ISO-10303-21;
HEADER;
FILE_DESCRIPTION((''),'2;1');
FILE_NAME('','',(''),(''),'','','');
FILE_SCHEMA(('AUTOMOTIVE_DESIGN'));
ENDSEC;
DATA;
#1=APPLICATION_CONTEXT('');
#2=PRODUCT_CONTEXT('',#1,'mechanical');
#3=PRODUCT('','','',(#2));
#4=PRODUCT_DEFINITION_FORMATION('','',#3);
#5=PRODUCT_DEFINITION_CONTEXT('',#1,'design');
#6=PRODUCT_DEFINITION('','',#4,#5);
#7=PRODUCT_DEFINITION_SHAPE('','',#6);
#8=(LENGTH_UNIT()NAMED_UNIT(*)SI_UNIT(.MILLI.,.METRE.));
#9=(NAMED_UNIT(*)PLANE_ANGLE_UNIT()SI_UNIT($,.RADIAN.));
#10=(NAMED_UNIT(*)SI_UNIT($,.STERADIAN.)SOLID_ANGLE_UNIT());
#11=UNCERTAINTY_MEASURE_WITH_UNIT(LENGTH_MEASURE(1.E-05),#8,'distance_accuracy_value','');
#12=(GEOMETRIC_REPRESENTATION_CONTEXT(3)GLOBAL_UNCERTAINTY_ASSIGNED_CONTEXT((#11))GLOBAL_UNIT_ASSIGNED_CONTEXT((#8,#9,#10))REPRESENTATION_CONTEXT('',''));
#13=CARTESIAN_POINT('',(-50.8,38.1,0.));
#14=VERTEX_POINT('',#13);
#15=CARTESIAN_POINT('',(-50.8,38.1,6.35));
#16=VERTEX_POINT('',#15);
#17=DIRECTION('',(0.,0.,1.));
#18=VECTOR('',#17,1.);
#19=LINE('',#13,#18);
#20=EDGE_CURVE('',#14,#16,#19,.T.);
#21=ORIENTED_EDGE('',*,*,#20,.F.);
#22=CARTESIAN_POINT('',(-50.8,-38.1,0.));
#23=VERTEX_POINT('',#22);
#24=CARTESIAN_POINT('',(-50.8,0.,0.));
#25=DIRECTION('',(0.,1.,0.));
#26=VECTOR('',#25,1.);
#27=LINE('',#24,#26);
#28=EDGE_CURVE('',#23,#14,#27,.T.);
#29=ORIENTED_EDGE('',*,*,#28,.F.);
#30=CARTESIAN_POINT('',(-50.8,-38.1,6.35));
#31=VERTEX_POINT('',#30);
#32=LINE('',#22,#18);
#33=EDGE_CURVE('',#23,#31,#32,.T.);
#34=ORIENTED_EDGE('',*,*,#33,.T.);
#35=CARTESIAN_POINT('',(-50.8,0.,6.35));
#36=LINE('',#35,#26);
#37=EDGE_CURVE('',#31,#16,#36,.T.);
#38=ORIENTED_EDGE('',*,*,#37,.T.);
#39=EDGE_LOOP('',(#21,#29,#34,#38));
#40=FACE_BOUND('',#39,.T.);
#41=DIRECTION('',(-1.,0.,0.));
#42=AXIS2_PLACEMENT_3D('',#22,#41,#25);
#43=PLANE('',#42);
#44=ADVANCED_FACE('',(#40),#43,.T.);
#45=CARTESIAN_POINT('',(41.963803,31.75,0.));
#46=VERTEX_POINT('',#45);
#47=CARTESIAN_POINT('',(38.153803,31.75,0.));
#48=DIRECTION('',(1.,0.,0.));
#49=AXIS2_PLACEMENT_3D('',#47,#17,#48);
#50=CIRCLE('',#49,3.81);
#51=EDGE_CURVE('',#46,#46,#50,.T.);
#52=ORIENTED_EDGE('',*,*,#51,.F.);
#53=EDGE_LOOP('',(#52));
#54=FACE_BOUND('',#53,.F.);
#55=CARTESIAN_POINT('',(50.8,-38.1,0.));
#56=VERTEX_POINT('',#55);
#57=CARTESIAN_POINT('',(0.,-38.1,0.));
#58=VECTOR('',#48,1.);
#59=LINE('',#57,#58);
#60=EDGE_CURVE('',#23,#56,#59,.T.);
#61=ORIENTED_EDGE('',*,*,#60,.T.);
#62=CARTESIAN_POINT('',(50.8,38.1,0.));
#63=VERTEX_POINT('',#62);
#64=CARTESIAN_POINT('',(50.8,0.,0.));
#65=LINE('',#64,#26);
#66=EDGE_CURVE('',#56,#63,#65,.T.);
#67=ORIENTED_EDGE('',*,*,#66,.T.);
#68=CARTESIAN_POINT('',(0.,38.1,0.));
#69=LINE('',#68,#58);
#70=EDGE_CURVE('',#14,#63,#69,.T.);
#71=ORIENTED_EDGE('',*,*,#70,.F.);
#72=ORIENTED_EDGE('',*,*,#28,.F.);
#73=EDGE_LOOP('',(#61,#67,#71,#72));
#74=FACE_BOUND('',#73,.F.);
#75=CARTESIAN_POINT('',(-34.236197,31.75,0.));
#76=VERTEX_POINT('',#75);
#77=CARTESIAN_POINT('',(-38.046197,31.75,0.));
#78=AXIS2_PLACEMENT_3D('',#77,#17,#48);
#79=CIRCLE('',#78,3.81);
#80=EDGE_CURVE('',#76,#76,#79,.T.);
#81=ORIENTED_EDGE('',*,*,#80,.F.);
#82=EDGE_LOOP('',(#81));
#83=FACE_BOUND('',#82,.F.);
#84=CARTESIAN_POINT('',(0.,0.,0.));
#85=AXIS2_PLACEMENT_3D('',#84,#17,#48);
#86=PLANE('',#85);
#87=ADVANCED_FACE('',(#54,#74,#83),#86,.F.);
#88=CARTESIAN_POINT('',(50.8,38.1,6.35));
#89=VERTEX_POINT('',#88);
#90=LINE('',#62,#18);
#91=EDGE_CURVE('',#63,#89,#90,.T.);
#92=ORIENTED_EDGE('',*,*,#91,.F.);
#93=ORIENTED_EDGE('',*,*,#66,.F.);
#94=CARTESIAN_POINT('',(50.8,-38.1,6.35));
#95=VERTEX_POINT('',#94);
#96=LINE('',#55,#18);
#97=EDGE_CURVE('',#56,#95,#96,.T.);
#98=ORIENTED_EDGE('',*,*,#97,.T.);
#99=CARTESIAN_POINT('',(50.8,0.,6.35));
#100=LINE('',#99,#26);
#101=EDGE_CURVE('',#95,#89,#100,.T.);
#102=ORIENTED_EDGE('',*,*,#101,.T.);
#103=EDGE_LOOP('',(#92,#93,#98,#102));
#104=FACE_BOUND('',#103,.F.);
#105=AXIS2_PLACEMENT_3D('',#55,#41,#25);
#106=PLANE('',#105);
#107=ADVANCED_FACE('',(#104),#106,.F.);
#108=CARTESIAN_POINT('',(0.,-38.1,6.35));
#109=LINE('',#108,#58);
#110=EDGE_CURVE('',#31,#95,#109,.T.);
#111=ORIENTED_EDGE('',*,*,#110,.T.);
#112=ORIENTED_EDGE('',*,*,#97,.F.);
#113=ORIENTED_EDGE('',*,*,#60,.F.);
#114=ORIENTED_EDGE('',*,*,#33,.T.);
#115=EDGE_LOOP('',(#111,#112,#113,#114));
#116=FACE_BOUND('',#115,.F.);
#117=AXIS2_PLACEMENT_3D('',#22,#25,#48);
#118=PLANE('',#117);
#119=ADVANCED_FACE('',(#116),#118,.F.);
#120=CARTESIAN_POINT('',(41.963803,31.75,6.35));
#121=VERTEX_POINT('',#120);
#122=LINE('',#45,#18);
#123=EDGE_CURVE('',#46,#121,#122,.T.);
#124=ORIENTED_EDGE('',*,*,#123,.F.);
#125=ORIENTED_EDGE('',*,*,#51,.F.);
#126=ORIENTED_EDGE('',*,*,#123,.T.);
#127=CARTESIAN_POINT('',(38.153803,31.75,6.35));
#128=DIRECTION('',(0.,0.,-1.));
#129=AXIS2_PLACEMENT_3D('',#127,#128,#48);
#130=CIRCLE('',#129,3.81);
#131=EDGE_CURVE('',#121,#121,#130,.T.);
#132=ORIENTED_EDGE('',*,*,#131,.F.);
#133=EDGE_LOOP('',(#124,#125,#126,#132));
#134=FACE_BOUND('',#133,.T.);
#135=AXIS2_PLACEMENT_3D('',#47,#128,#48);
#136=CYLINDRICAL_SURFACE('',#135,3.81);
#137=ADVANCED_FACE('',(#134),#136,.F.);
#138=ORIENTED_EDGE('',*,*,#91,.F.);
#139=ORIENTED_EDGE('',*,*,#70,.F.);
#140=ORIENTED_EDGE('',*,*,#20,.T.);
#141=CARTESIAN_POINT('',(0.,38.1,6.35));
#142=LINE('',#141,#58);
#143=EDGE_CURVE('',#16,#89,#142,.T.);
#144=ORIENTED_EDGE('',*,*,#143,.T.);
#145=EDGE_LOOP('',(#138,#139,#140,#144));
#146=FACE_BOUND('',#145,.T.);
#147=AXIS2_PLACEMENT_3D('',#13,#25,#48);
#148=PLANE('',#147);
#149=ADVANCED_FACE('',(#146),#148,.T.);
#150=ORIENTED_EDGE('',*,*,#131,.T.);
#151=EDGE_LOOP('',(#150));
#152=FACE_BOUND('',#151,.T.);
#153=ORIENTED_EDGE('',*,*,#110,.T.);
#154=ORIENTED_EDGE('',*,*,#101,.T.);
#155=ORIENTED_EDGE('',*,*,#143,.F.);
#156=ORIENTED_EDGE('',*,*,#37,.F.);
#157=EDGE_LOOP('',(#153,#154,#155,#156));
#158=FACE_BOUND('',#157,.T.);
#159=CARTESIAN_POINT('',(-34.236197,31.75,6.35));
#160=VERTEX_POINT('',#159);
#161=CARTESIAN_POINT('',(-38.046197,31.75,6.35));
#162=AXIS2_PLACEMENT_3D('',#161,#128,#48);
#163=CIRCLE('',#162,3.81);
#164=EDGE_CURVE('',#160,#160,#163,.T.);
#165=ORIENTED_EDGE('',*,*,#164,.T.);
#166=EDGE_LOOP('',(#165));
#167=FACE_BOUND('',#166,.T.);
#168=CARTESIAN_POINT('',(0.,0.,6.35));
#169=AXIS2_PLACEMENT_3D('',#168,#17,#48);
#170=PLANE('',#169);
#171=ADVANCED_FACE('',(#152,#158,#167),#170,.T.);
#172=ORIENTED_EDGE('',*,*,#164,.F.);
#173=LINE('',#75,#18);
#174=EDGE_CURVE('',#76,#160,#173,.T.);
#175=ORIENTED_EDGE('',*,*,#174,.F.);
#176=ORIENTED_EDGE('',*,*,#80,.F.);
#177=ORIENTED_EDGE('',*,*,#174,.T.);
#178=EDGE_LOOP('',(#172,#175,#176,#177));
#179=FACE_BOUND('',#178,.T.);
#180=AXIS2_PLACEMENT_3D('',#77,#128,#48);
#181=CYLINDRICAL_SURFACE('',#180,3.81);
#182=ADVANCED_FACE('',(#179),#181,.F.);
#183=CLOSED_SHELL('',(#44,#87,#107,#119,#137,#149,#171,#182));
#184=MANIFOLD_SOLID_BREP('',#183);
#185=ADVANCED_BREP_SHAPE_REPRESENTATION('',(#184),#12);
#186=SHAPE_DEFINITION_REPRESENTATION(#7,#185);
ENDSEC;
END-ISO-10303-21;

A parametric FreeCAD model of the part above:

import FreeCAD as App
import Part
import Sketcher
from FreeCAD import Vector
Q = App.Units.Quantity

doc = App.newDocument("Part")
params = doc.addObject("Spreadsheet::Sheet", "Params")
for row, (alias, value) in enumerate([
    ("sketch1_width", "4 in"),
    ("sketch1_height", "3 in"),
    ("pad1_length", "0.25 in"),
    ("sketch2_diameter", "0.3 in"),
], start=1):
    params.set(f"A{row}", alias)
    params.set(f"B{row}", "=" + value)
    params.setAlias(f"B{row}", alias)

body = doc.addObject("PartDesign::Body", "Body")

sketch1 = doc.addObject("Sketcher::SketchObject", "Sketch")
body.addObject(sketch1)
sketch1.AttachmentSupport = (doc.XY_Plane, [""])
sketch1.MapMode = "FlatFace"
sketch1.addGeometry(Part.LineSegment(Vector(-50.8, 38.1, 0), Vector(-50.8, -38.1, 0)), False)
sketch1.addGeometry(Part.LineSegment(Vector(-50.8, -38.1, 0), Vector(50.8, -38.1, 0)), False)
sketch1.addGeometry(Part.LineSegment(Vector(50.8, -38.1, 0), Vector(50.8, 38.1, 0)), False)
sketch1.addGeometry(Part.LineSegment(Vector(50.8, 38.1, 0), Vector(-50.8, 38.1, 0)), False)
sketch1.addConstraint(Sketcher.Constraint("Coincident", 0, 2, 1, 1))
sketch1.addConstraint(Sketcher.Constraint("Coincident", 1, 2, 2, 1))
sketch1.addConstraint(Sketcher.Constraint("Coincident", 2, 2, 3, 1))
sketch1.addConstraint(Sketcher.Constraint("Coincident", 3, 2, 0, 1))
sketch1.addConstraint(Sketcher.Constraint("Vertical", 0))
sketch1.addConstraint(Sketcher.Constraint("Horizontal", 1))
sketch1.addConstraint(Sketcher.Constraint("Vertical", 2))
sketch1.addConstraint(Sketcher.Constraint("Horizontal", 3))
sketch1.addConstraint(Sketcher.Constraint("Symmetric", 0, 2, 2, 2, -1, 1))
sketch1.addConstraint(Sketcher.Constraint("DistanceX", 1, 1, 1, 2, Q("4 in")))
sketch1.addConstraint(Sketcher.Constraint("DistanceY", 0, 2, 0, 1, Q("3 in")))
sketch1.setExpression("Constraints[9]", "Params.sketch1_width")
sketch1.setExpression("Constraints[10]", "Params.sketch1_height")
pad1 = doc.addObject("PartDesign::Pad", "Pad")
body.addObject(pad1)
pad1.Profile = sketch1
pad1.setExpression("Length", "Params.pad1_length")

sketch2 = doc.addObject("Sketcher::SketchObject", "Sketch001")
body.addObject(sketch2)
sketch2.AttachmentSupport = (doc.XY_Plane, [""])
sketch2.MapMode = "FlatFace"
sketch2.addGeometry(Part.Circle(Vector(38.153803, 31.75, 0), Vector(0, 0, 1), 3.81), False)
sketch2.addGeometry(Part.Circle(Vector(-38.046197, 31.75, 0), Vector(0, 0, 1), 3.81), False)
sketch2.addConstraint(Sketcher.Constraint("Equal", 0, 1))
sketch2.addConstraint(Sketcher.Constraint("Horizontal", 0, 3, 1, 3))
sketch2.addConstraint(Sketcher.Constraint("Diameter", 0, Q("0.3 in")))
sketch2.addConstraint(Sketcher.Constraint("DistanceX", 1, 3, 0, 3, Q("3 in")))
sketch2.addConstraint(Sketcher.Constraint("DistanceY", -1, 1, 0, 3, Q("1.25 in")))
sketch2.addConstraint(Sketcher.Constraint("DistanceX", -1, 1, 0, 3, Q("38.153803 mm")))
sketch2.setExpression("Constraints[2]", "Params.sketch2_diameter")
pocket1 = doc.addObject("PartDesign::Pocket", "Pocket")
body.addObject(pocket1)
pocket1.Profile = sketch2
pocket1.Type = "ThroughAll"
pocket1.Reversed = True

doc.recompute()
